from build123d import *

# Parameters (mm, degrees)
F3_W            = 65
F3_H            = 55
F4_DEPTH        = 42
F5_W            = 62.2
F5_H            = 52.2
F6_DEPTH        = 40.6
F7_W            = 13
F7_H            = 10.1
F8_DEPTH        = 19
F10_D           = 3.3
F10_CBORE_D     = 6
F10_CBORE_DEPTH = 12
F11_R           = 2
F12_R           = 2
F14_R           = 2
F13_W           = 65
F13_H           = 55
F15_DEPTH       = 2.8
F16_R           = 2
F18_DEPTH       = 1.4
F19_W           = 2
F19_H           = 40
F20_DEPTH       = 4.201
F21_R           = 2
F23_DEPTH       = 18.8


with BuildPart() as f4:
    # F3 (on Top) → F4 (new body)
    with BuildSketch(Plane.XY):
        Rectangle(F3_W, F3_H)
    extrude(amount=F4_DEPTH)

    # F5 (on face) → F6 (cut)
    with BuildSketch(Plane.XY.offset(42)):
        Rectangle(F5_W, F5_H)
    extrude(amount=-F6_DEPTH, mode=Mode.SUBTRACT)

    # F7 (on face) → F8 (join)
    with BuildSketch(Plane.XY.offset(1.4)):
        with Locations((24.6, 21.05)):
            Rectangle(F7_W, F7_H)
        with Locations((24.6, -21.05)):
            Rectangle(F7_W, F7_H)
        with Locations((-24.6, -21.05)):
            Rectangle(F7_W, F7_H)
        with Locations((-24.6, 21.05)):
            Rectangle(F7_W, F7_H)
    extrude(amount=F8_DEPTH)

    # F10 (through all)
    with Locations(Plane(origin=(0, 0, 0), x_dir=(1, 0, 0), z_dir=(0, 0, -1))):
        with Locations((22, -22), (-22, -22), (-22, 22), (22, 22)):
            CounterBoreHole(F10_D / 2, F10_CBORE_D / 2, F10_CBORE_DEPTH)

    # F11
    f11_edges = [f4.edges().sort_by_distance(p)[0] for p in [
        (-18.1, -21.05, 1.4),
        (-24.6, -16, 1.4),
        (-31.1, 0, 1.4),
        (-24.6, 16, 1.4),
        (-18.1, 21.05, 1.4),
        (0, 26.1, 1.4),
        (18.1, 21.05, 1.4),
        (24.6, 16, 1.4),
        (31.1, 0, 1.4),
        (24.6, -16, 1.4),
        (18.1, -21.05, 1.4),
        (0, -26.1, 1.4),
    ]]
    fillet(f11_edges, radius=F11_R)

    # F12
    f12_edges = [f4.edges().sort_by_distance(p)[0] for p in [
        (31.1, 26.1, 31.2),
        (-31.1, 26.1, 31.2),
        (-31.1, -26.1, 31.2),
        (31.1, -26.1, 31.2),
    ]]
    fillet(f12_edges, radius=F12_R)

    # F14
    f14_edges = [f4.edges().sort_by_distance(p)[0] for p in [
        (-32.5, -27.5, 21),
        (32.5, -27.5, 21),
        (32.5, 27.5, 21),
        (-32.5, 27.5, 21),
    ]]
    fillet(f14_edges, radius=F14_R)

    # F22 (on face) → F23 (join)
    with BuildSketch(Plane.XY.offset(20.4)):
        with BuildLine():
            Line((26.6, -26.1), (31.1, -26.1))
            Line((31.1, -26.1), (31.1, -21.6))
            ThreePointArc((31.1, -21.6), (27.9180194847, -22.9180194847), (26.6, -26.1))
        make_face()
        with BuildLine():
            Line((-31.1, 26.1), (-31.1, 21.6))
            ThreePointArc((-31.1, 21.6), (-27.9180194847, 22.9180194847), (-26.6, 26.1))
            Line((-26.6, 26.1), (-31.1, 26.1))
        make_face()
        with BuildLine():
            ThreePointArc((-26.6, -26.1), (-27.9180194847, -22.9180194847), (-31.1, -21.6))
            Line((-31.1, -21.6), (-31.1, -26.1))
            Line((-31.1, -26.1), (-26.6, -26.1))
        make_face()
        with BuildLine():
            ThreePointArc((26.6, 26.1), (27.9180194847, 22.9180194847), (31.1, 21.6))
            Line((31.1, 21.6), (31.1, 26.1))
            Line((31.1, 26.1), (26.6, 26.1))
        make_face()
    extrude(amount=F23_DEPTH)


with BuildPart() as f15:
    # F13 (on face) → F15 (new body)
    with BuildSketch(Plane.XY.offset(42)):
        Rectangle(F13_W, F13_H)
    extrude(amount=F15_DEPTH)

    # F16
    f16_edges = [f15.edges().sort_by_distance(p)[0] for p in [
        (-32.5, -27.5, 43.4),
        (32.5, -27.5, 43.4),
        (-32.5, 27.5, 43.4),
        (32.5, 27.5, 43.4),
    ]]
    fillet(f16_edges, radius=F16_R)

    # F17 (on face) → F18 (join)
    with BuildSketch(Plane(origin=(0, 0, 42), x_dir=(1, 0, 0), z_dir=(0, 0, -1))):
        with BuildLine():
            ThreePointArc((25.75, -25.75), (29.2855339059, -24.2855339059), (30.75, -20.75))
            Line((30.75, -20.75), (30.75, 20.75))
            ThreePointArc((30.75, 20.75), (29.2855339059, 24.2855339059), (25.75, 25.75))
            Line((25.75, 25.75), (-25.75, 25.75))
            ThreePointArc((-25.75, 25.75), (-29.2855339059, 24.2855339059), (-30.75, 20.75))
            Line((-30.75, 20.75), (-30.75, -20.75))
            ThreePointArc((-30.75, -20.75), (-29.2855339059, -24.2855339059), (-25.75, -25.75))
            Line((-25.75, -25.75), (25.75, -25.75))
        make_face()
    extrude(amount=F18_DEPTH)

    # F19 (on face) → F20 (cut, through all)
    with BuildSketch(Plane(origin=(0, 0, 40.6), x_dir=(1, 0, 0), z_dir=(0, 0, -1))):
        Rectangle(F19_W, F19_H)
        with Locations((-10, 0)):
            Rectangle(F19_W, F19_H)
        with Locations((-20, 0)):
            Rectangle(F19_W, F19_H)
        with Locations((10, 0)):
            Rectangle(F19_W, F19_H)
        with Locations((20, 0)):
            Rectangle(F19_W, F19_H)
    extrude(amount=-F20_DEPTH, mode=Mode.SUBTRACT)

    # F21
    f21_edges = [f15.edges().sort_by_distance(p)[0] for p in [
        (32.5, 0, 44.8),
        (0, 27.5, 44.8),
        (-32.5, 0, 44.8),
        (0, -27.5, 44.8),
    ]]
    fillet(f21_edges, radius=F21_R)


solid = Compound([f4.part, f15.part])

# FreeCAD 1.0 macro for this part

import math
import FreeCAD as App
import Part
import Sketcher

V = App.Vector


def edges_at(feature, points):
    """Names of the edges that pass closest to the given points."""
    edges = feature.Shape.Edges
    near = lambda p: min(range(len(edges)), key=lambda i: edges[i].distToShape(Part.Vertex(*p))[0])
    return sorted({f"Edge{near(p) + 1}" for p in points})


def add_polygon(sketch, points):
    """Adds a closed chain of lines whose ends are joined by coincident constraints."""
    first, n = sketch.GeometryCount, len(points)
    for a, b in zip(points, points[1:] + points[:1]):
        sketch.addGeometry(Part.LineSegment(App.Vector(*a, 0), App.Vector(*b, 0)), False)
    for i in range(n):
        sketch.addConstraint(Sketcher.Constraint("Coincident", first + i, 2, first + (i + 1) % n, 1))

doc = App.newDocument("Part")
body = doc.addObject("PartDesign::Body", "Body")

# Sketch on XY plane
sketch1 = body.newObject("Sketcher::SketchObject", "Sketch")
sketch1.AttachmentSupport = (doc.getObject("XY_Plane"), [""])
sketch1.MapMode = "FlatFace"
add_polygon(sketch1, [(-32, 28), (-32, -28), (32, -28), (32, 28)])  # lines 0-3
sketch1.addConstraint(Sketcher.Constraint("Vertical", 0))
sketch1.addConstraint(Sketcher.Constraint("Horizontal", 1))
sketch1.addConstraint(Sketcher.Constraint("Vertical", 2))
sketch1.addConstraint(Sketcher.Constraint("Horizontal", 3))
sketch1.addConstraint(Sketcher.Constraint("Symmetric", 0, 2, 2, 2, -1, 1))
sketch1.addConstraint(Sketcher.Constraint("DistanceX", 1, 1, 1, 2, 65.0))
sketch1.addConstraint(Sketcher.Constraint("DistanceY", 0, 2, 0, 1, 55.0))
pad1 = body.newObject("PartDesign::Pad", "Pad")
pad1.Profile = sketch1
pad1.Length = 42

# Sketch on XY plane
sketch2 = body.newObject("Sketcher::SketchObject", "Sketch001")
sketch2.AttachmentSupport = (doc.getObject("XY_Plane"), [""])
sketch2.MapMode = "FlatFace"
sketch2.AttachmentOffset = App.Placement(V(0, 0, 42), App.Rotation())
add_polygon(sketch2, [(-31, 26), (-31, -26), (31, -26), (31, 26)])  # lines 0-3
sketch2.addConstraint(Sketcher.Constraint("Vertical", 0))
sketch2.addConstraint(Sketcher.Constraint("Horizontal", 1))
sketch2.addConstraint(Sketcher.Constraint("Vertical", 2))
sketch2.addConstraint(Sketcher.Constraint("Horizontal", 3))
sketch2.addConstraint(Sketcher.Constraint("Symmetric", 0, 2, 2, 2, -1, 1))
sketch2.addConstraint(Sketcher.Constraint("DistanceX", 1, 1, 1, 2, 62.2))
sketch2.addConstraint(Sketcher.Constraint("DistanceY", 0, 2, 0, 1, 52.2))
pocket1 = body.newObject("PartDesign::Pocket", "Pocket")
pocket1.Profile = sketch2
pocket1.Length = 40.6

# Sketch on XY plane
sketch3 = body.newObject("Sketcher::SketchObject", "Sketch002")
sketch3.AttachmentSupport = (doc.getObject("XY_Plane"), [""])
sketch3.MapMode = "FlatFace"
sketch3.AttachmentOffset = App.Placement(V(0, 0, 1.4), App.Rotation())
add_polygon(sketch3, [(18, 26), (18, 16), (31, 16), (31, 26)])  # lines 0-3
add_polygon(sketch3, [(18, -16), (18, -26), (31, -26), (31, -16)])  # lines 4-7
add_polygon(sketch3, [(-31, -16), (-31, -26), (-18, -26), (-18, -16)])  # lines 8-11
add_polygon(sketch3, [(-31, 26), (-31, 16), (-18, 16), (-18, 26)])  # lines 12-15
sketch3.addConstraint(Sketcher.Constraint("Vertical", 0))
sketch3.addConstraint(Sketcher.Constraint("Horizontal", 1))
sketch3.addConstraint(Sketcher.Constraint("Vertical", 2))
sketch3.addConstraint(Sketcher.Constraint("Horizontal", 3))
sketch3.addConstraint(Sketcher.Constraint("Vertical", 4))
sketch3.addConstraint(Sketcher.Constraint("Horizontal", 5))
sketch3.addConstraint(Sketcher.Constraint("Vertical", 6))
sketch3.addConstraint(Sketcher.Constraint("Horizontal", 7))
sketch3.addConstraint(Sketcher.Constraint("Vertical", 8))
sketch3.addConstraint(Sketcher.Constraint("Horizontal", 9))
sketch3.addConstraint(Sketcher.Constraint("Vertical", 10))
sketch3.addConstraint(Sketcher.Constraint("Horizontal", 11))
sketch3.addConstraint(Sketcher.Constraint("Vertical", 12))
sketch3.addConstraint(Sketcher.Constraint("Horizontal", 13))
sketch3.addConstraint(Sketcher.Constraint("Vertical", 14))
sketch3.addConstraint(Sketcher.Constraint("Horizontal", 15))
sketch3.addConstraint(Sketcher.Constraint("Symmetric", 2, 2, 8, 2, -1, 1))
sketch3.addConstraint(Sketcher.Constraint("Symmetric", 0, 2, 10, 2, -1, 1))
sketch3.addConstraint(Sketcher.Constraint("Symmetric", 6, 2, 12, 2, -1, 1))
sketch3.addConstraint(Sketcher.Constraint("Symmetric", 4, 2, 14, 2, -1, 1))
sketch3.addConstraint(Sketcher.Constraint("Symmetric", 5, 2, 8, 2, -2))
sketch3.addConstraint(Sketcher.Constraint("Symmetric", 7, 2, 10, 2, -2))
sketch3.addConstraint(Sketcher.Constraint("DistanceX", 1, 1, 1, 2, 13.0))
sketch3.addConstraint(Sketcher.Constraint("DistanceY", 0, 2, 0, 1, 10.1))
sketch3.addConstraint(Sketcher.Constraint("DistanceY", -1, 1, 0, 2, 16.0))
sketch3.addConstraint(Sketcher.Constraint("DistanceX", -1, 1, 0, 2, 18.1))
pad2 = body.newObject("PartDesign::Pad", "Pad001")
pad2.Profile = sketch3
pad2.Length = 19

# Sketch on XY plane
sketch4 = body.newObject("Sketcher::SketchObject", "Sketch003")
sketch4.AttachmentSupport = (doc.getObject("XY_Plane"), [""])
sketch4.MapMode = "FlatFace"
sketch4.addGeometry(Part.Circle(V(22, 22, 0), V(0, 0, 1), 1.6), False)
sketch4.addGeometry(Part.Circle(V(-22, 22, 0), V(0, 0, 1), 1.6), False)
sketch4.addGeometry(Part.Circle(V(-22, -22, 0), V(0, 0, 1), 1.6), False)
sketch4.addGeometry(Part.Circle(V(22, -22, 0), V(0, 0, 1), 1.6), False)
sketch4.addConstraint(Sketcher.Constraint("Equal", 0, 1))
sketch4.addConstraint(Sketcher.Constraint("Equal", 1, 2))
sketch4.addConstraint(Sketcher.Constraint("Equal", 2, 3))
sketch4.addConstraint(Sketcher.Constraint("Symmetric", 0, 3, 2, 3, -1, 1))
sketch4.addConstraint(Sketcher.Constraint("Symmetric", 1, 3, 3, 3, -1, 1))
sketch4.addConstraint(Sketcher.Constraint("Symmetric", 0, 3, 1, 3, -2))
sketch4.addConstraint(Sketcher.Constraint("Diameter", 0, 3.3))
sketch4.addConstraint(Sketcher.Constraint("DistanceX", -1, 1, 0, 3, 22.0))
sketch4.addConstraint(Sketcher.Constraint("DistanceY", -1, 1, 0, 3, 22.0))
doc.recompute()
hole = body.newObject("PartDesign::Hole", "Hole")
hole.Profile = sketch4
hole.ThreadType = "None"
hole.Diameter = 3.3
hole.DepthType = "ThroughAll"
hole.HoleCutType = "Counterbore"
hole.HoleCutDiameter = 6
hole.HoleCutDepth = 12
hole.Reversed = True
doc.recompute()

fillet = body.newObject("PartDesign::Fillet", "Fillet")
fillet.Base = (hole, edges_at(hole, [
    (-18.1, -21.05, 1.4),
    (-24.6, -16, 1.4),
    (-31.1, 0, 1.4),
    (-24.6, 16, 1.4),
    (-18.1, 21.05, 1.4),
    (0, 26.1, 1.4),
    (18.1, 21.05, 1.4),
    (24.6, 16, 1.4),
    (31.1, 0, 1.4),
    (24.6, -16, 1.4),
    (18.1, -21.05, 1.4),
    (0, -26.1, 1.4),
]))
fillet.Radius = 2
doc.recompute()

fillet2 = body.newObject("PartDesign::Fillet", "Fillet001")
fillet2.Base = (fillet, edges_at(fillet, [
    (31.1, 26.1, 31.2),
    (-31.1, 26.1, 31.2),
    (-31.1, -26.1, 31.2),
    (31.1, -26.1, 31.2),
]))
fillet2.Radius = 2
doc.recompute()

fillet3 = body.newObject("PartDesign::Fillet", "Fillet002")
fillet3.Base = (fillet2, edges_at(fillet2, [
    (-32.5, -27.5, 21),
    (32.5, -27.5, 21),
    (32.5, 27.5, 21),
    (-32.5, 27.5, 21),
]))
fillet3.Radius = 2

# Sketch on XY plane
sketch5 = body.newObject("Sketcher::SketchObject", "Sketch004")
sketch5.AttachmentSupport = (doc.getObject("XY_Plane"), [""])
sketch5.MapMode = "FlatFace"
sketch5.AttachmentOffset = App.Placement(V(0, 0, 20.4), App.Rotation())
sketch5.addGeometry(Part.LineSegment(V(26.6, -26.1, 0), V(31.1, -26.1, 0)), False)
sketch5.addGeometry(Part.LineSegment(V(31.1, -26.1, 0), V(31.1, -21.6, 0)), False)
sketch5.addGeometry(Part.ArcOfCircle(Part.Circle(V(31.1, -26.1, 0), V(0, 0, 1), 4.5), math.radians(90), math.radians(180)), False)
sketch5.addGeometry(Part.LineSegment(V(-31.1, 26.1, 0), V(-31.1, 21.6, 0)), False)
sketch5.addGeometry(Part.ArcOfCircle(Part.Circle(V(-31.1, 26.1, 0), V(0, 0, 1), 4.5), math.radians(-90), math.radians(0)), False)
sketch5.addGeometry(Part.LineSegment(V(-26.6, 26.1, 0), V(-31.1, 26.1, 0)), False)
sketch5.addGeometry(Part.ArcOfCircle(Part.Circle(V(-31.1, -26.1, 0), V(0, 0, 1), 4.5), math.radians(0), math.radians(90)), False)
sketch5.addGeometry(Part.LineSegment(V(-31.1, -21.6, 0), V(-31.1, -26.1, 0)), False)
sketch5.addGeometry(Part.LineSegment(V(-31.1, -26.1, 0), V(-26.6, -26.1, 0)), False)
sketch5.addGeometry(Part.ArcOfCircle(Part.Circle(V(31.1, 26.1, 0), V(0, 0, 1), 4.5), math.radians(180), math.radians(270)), False)
sketch5.addGeometry(Part.LineSegment(V(31.1, 21.6, 0), V(31.1, 26.1, 0)), False)
sketch5.addGeometry(Part.LineSegment(V(31.1, 26.1, 0), V(26.6, 26.1, 0)), False)
sketch5.addConstraint(Sketcher.Constraint("Coincident", 0, 2, 1, 1))
sketch5.addConstraint(Sketcher.Constraint("Coincident", 1, 2, 2, 1))
sketch5.addConstraint(Sketcher.Constraint("Coincident", 2, 2, 0, 1))
sketch5.addConstraint(Sketcher.Constraint("Coincident", 3, 2, 4, 1))
sketch5.addConstraint(Sketcher.Constraint("Coincident", 4, 2, 5, 1))
sketch5.addConstraint(Sketcher.Constraint("Coincident", 5, 2, 3, 1))
sketch5.addConstraint(Sketcher.Constraint("Coincident", 6, 2, 7, 1))
sketch5.addConstraint(Sketcher.Constraint("Coincident", 7, 2, 8, 1))
sketch5.addConstraint(Sketcher.Constraint("Coincident", 8, 2, 6, 1))
sketch5.addConstraint(Sketcher.Constraint("Coincident", 9, 2, 10, 1))
sketch5.addConstraint(Sketcher.Constraint("Coincident", 10, 2, 11, 1))
sketch5.addConstraint(Sketcher.Constraint("Coincident", 11, 2, 9, 1))
sketch5.addConstraint(Sketcher.Constraint("Horizontal", 0))
sketch5.addConstraint(Sketcher.Constraint("Vertical", 1))
sketch5.addConstraint(Sketcher.Constraint("Vertical", 3))
sketch5.addConstraint(Sketcher.Constraint("Horizontal", 5))
sketch5.addConstraint(Sketcher.Constraint("Vertical", 7))
sketch5.addConstraint(Sketcher.Constraint("Horizontal", 8))
sketch5.addConstraint(Sketcher.Constraint("Vertical", 10))
sketch5.addConstraint(Sketcher.Constraint("Horizontal", 11))
sketch5.addConstraint(Sketcher.Constraint("Coincident", 0, 2, 2, 3))
sketch5.addConstraint(Sketcher.Constraint("Coincident", 5, 2, 4, 3))
sketch5.addConstraint(Sketcher.Constraint("Coincident", 7, 2, 6, 3))
sketch5.addConstraint(Sketcher.Constraint("Coincident", 10, 2, 9, 3))
sketch5.addConstraint(Sketcher.Constraint("Equal", 2, 4))
sketch5.addConstraint(Sketcher.Constraint("Equal", 4, 6))
sketch5.addConstraint(Sketcher.Constraint("Equal", 6, 9))
sketch5.addConstraint(Sketcher.Constraint("Symmetric", 2, 3, 4, 3, -1, 1))
sketch5.addConstraint(Sketcher.Constraint("Symmetric", 6, 3, 9, 3, -1, 1))
sketch5.addConstraint(Sketcher.Constraint("Symmetric", 2, 3, 6, 3, -2))
sketch5.addConstraint(Sketcher.Constraint("Radius", 2, 4.5))
sketch5.addConstraint(Sketcher.Constraint("DistanceX", -1, 1, 2, 3, 31.1))
sketch5.addConstraint(Sketcher.Constraint("DistanceY", 2, 3, -1, 1, 26.1))
pad3 = body.newObject("PartDesign::Pad", "Pad002")
pad3.Profile = sketch5
pad3.Length = 18.8
body2 = doc.addObject("PartDesign::Body", "Body001")

# Sketch on XY plane
sketch6 = body2.newObject("Sketcher::SketchObject", "Sketch005")
sketch6.AttachmentSupport = (doc.getObject("XY_Plane001"), [""])
sketch6.MapMode = "FlatFace"
sketch6.AttachmentOffset = App.Placement(V(0, 0, 42), App.Rotation())
add_polygon(sketch6, [(-32, 28), (-32, -28), (32, -28), (32, 28)])  # lines 0-3
sketch6.addConstraint(Sketcher.Constraint("Vertical", 0))
sketch6.addConstraint(Sketcher.Constraint("Horizontal", 1))
sketch6.addConstraint(Sketcher.Constraint("Vertical", 2))
sketch6.addConstraint(Sketcher.Constraint("Horizontal", 3))
sketch6.addConstraint(Sketcher.Constraint("Symmetric", 0, 2, 2, 2, -1, 1))
sketch6.addConstraint(Sketcher.Constraint("DistanceX", 1, 1, 1, 2, 65.0))
sketch6.addConstraint(Sketcher.Constraint("DistanceY", 0, 2, 0, 1, 55.0))
pad4 = body2.newObject("PartDesign::Pad", "Pad003")
pad4.Profile = sketch6
pad4.Length = 2.8
doc.recompute()

fillet4 = body2.newObject("PartDesign::Fillet", "Fillet003")
fillet4.Base = (pad4, edges_at(pad4, [
    (-32.5, -27.5, 43.4),
    (32.5, -27.5, 43.4),
    (-32.5, 27.5, 43.4),
    (32.5, 27.5, 43.4),
]))
fillet4.Radius = 2

# Sketch on XY plane
sketch7 = body2.newObject("Sketcher::SketchObject", "Sketch006")
sketch7.AttachmentSupport = (doc.getObject("XY_Plane001"), [""])
sketch7.MapMode = "FlatFace"
sketch7.AttachmentOffset = App.Placement(V(0, 0, 42), App.Rotation())
sketch7.addGeometry(Part.ArcOfCircle(Part.Circle(V(26, 21, 0), V(0, 0, 1), 5), math.radians(0), math.radians(90)), False)
sketch7.addGeometry(Part.LineSegment(V(31, 21, 0), V(31, -21, 0)), False)
sketch7.addGeometry(Part.ArcOfCircle(Part.Circle(V(26, -21, 0), V(0, 0, 1), 5), math.radians(-90), math.radians(0)), False)
sketch7.addGeometry(Part.LineSegment(V(26, -26, 0), V(-26, -26, 0)), False)
sketch7.addGeometry(Part.ArcOfCircle(Part.Circle(V(-26, -21, 0), V(0, 0, 1), 5), math.radians(180), math.radians(270)), False)
sketch7.addGeometry(Part.LineSegment(V(-31, -21, 0), V(-31, 21, 0)), False)
sketch7.addGeometry(Part.ArcOfCircle(Part.Circle(V(-26, 21, 0), V(0, 0, 1), 5), math.radians(90), math.radians(180)), False)
sketch7.addGeometry(Part.LineSegment(V(-26, 26, 0), V(26, 26, 0)), False)
sketch7.addConstraint(Sketcher.Constraint("Tangent", 0, 1, 1, 1))
sketch7.addConstraint(Sketcher.Constraint("Tangent", 1, 2, 2, 2))
sketch7.addConstraint(Sketcher.Constraint("Tangent", 2, 1, 3, 1))
sketch7.addConstraint(Sketcher.Constraint("Tangent", 3, 2, 4, 2))
sketch7.addConstraint(Sketcher.Constraint("Tangent", 4, 1, 5, 1))
sketch7.addConstraint(Sketcher.Constraint("Tangent", 5, 2, 6, 2))
sketch7.addConstraint(Sketcher.Constraint("Tangent", 6, 1, 7, 1))
sketch7.addConstraint(Sketcher.Constraint("Tangent", 7, 2, 0, 2))
sketch7.addConstraint(Sketcher.Constraint("Vertical", 1))
sketch7.addConstraint(Sketcher.Constraint("Horizontal", 3))
sketch7.addConstraint(Sketcher.Constraint("Vertical", 5))
sketch7.addConstraint(Sketcher.Constraint("Horizontal", 7))
sketch7.addConstraint(Sketcher.Constraint("Equal", 0, 2))
sketch7.addConstraint(Sketcher.Constraint("Equal", 2, 4))
sketch7.addConstraint(Sketcher.Constraint("Equal", 4, 6))
sketch7.addConstraint(Sketcher.Constraint("Symmetric", 0, 3, 4, 3, -1, 1))
sketch7.addConstraint(Sketcher.Constraint("Radius", 0, 5.0))
sketch7.addConstraint(Sketcher.Constraint("DistanceX", 3, 2, 3, 1, 51.5))
sketch7.addConstraint(Sketcher.Constraint("DistanceY", 1, 2, 1, 1, 41.5))
pad5 = body2.newObject("PartDesign::Pad", "Pad004")
pad5.Profile = sketch7
pad5.Length = 1.4
pad5.Reversed = True

# Sketch on XY plane
sketch8 = body2.newObject("Sketcher::SketchObject", "Sketch007")
sketch8.AttachmentSupport = (doc.getObject("XY_Plane001"), [""])
sketch8.MapMode = "FlatFace"
sketch8.AttachmentOffset = App.Placement(V(0, 0, 40.6), App.Rotation())
add_polygon(sketch8, [(-1, -20), (-1, 20), (1, 20), (1, -20)])  # lines 0-3
add_polygon(sketch8, [(-11, -20), (-11, 20), (-9, 20), (-9, -20)])  # lines 4-7
add_polygon(sketch8, [(-21, -20), (-21, 20), (-19, 20), (-19, -20)])  # lines 8-11
add_polygon(sketch8, [(9, -20), (9, 20), (11, 20), (11, -20)])  # lines 12-15
add_polygon(sketch8, [(19, -20), (19, 20), (21, 20), (21, -20)])  # lines 16-19
sketch8.addConstraint(Sketcher.Constraint("Vertical", 0))
sketch8.addConstraint(Sketcher.Constraint("Horizontal", 1))
sketch8.addConstraint(Sketcher.Constraint("Vertical", 2))
sketch8.addConstraint(Sketcher.Constraint("Horizontal", 3))
sketch8.addConstraint(Sketcher.Constraint("Vertical", 4))
sketch8.addConstraint(Sketcher.Constraint("Horizontal", 5))
sketch8.addConstraint(Sketcher.Constraint("Vertical", 6))
sketch8.addConstraint(Sketcher.Constraint("Horizontal", 7))
sketch8.addConstraint(Sketcher.Constraint("Vertical", 8))
sketch8.addConstraint(Sketcher.Constraint("Horizontal", 9))
sketch8.addConstraint(Sketcher.Constraint("Vertical", 10))
sketch8.addConstraint(Sketcher.Constraint("Horizontal", 11))
sketch8.addConstraint(Sketcher.Constraint("Vertical", 12))
sketch8.addConstraint(Sketcher.Constraint("Horizontal", 13))
sketch8.addConstraint(Sketcher.Constraint("Vertical", 14))
sketch8.addConstraint(Sketcher.Constraint("Horizontal", 15))
sketch8.addConstraint(Sketcher.Constraint("Vertical", 16))
sketch8.addConstraint(Sketcher.Constraint("Horizontal", 17))
sketch8.addConstraint(Sketcher.Constraint("Vertical", 18))
sketch8.addConstraint(Sketcher.Constraint("Horizontal", 19))
sketch8.addConstraint(Sketcher.Constraint("Symmetric", 0, 2, 2, 2, -1, 1))
sketch8.addConstraint(Sketcher.Constraint("Symmetric", 6, 2, 12, 2, -1, 1))
sketch8.addConstraint(Sketcher.Constraint("Symmetric", 4, 2, 14, 2, -1, 1))
sketch8.addConstraint(Sketcher.Constraint("Symmetric", 10, 2, 16, 2, -1, 1))
sketch8.addConstraint(Sketcher.Constraint("Symmetric", 8, 2, 18, 2, -1, 1))
sketch8.addConstraint(Sketcher.Constraint("Horizontal", 1, 2, 4, 2))
sketch8.addConstraint(Sketcher.Constraint("Horizontal", 3, 2, 6, 2))
sketch8.addConstraint(Sketcher.Constraint("Horizontal", 5, 2, 8, 2))
sketch8.addConstraint(Sketcher.Constraint("Horizontal", 7, 2, 10, 2))
sketch8.addConstraint(Sketcher.Constraint("Equal", 3, 5))
sketch8.addConstraint(Sketcher.Constraint("Equal", 7, 9))
sketch8.addConstraint(Sketcher.Constraint("DistanceX", 1, 1, 1, 2, 2.0))
sketch8.addConstraint(Sketcher.Constraint("DistanceY", 0, 1, 0, 2, 40.0))
sketch8.addConstraint(Sketcher.Constraint("DistanceX", 4, 2, -1, 1, 11.0))
sketch8.addConstraint(Sketcher.Constraint("DistanceX", 8, 2, -1, 1, 21.0))
pocket2 = body2.newObject("PartDesign::Pocket", "Pocket001")
pocket2.Profile = sketch8
pocket2.Type = "ThroughAll"
pocket2.Reversed = True
doc.recompute()

fillet5 = body2.newObject("PartDesign::Fillet", "Fillet004")
fillet5.Base = (pocket2, edges_at(pocket2, [
    (32.5, 0, 44.8),
    (0, 27.5, 44.8),
    (-32.5, 0, 44.8),
    (0, -27.5, 44.8),
]))
fillet5.Radius = 2

doc.recompute()
